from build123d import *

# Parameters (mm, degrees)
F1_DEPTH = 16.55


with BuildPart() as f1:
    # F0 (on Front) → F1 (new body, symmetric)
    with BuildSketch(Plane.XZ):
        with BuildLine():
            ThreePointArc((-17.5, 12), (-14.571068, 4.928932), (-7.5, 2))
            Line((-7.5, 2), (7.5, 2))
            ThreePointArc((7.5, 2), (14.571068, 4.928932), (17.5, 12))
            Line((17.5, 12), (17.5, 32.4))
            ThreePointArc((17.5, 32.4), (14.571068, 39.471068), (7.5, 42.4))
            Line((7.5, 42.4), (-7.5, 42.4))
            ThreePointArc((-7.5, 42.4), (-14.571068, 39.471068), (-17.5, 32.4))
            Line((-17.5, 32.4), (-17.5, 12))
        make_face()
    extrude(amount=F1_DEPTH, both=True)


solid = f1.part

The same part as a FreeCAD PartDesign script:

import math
import FreeCAD as App
import Part
import Sketcher

V = App.Vector
Q = App.Units.Quantity

doc = App.newDocument("Part")
body = doc.addObject("PartDesign::Body", "Body")

# Sketch on XZ plane
sketch1 = body.newObject("Sketcher::SketchObject", "Sketch")
sketch1.AttachmentSupport = (doc.getObject("XZ_Plane"), [""])
sketch1.MapMode = "FlatFace"
sketch1.addGeometry([
    Part.ArcOfCircle(Part.Circle(V(-8, 12, 0), V(0, 0, 1), 10), math.radians(180), math.radians(270)),  # 0
    Part.LineSegment(V(-8, 2, 0), V(8, 2, 0)),  # 1
    Part.ArcOfCircle(Part.Circle(V(8, 12, 0), V(0, 0, 1), 10), math.radians(-90), math.radians(0)),  # 2
    Part.LineSegment(V(18, 12, 0), V(18, 32, 0)),  # 3
    Part.ArcOfCircle(Part.Circle(V(8, 32, 0), V(0, 0, 1), 10), math.radians(0), math.radians(90)),  # 4
    Part.LineSegment(V(8, 42, 0), V(-8, 42, 0)),  # 5
    Part.ArcOfCircle(Part.Circle(V(-8, 32, 0), V(0, 0, 1), 10), math.radians(90), math.radians(180)),  # 6
    Part.LineSegment(V(-18, 32, 0), V(-18, 12, 0)),  # 7
], False)
sketch1.addConstraint([
    Sketcher.Constraint("Tangent", 0, 2, 1, 1),
    Sketcher.Constraint("Tangent", 1, 2, 2, 1),
    Sketcher.Constraint("Tangent", 2, 2, 3, 1),
    Sketcher.Constraint("Tangent", 3, 2, 4, 1),
    Sketcher.Constraint("Tangent", 4, 2, 5, 1),
    Sketcher.Constraint("Tangent", 5, 2, 6, 1),
    Sketcher.Constraint("Tangent", 6, 2, 7, 1),
    Sketcher.Constraint("Tangent", 7, 2, 0, 1),
    Sketcher.Constraint("Horizontal", 1),
    Sketcher.Constraint("Vertical", 3),
    Sketcher.Constraint("Horizontal", 5),
    Sketcher.Constraint("Vertical", 7),
    Sketcher.Constraint("Equal", 0, 2),
    Sketcher.Constraint("Equal", 2, 4),
    Sketcher.Constraint("Equal", 4, 6),
    Sketcher.Constraint("Radius", 0, Q("9.999999 mm")),
    Sketcher.Constraint("DistanceX", 1, 1, 1, 2, Q("15 mm")),
    Sketcher.Constraint("DistanceY", 3, 1, 3, 2, Q("20.4 mm")),
    Sketcher.Constraint("DistanceY", -1, 1, 0, 3, Q("11.999999 mm")),
    Sketcher.Constraint("DistanceX", 0, 3, -1, 1, Q("7.500001 mm")),
])
pad1 = body.newObject("PartDesign::Pad", "Pad")
pad1.Profile = sketch1
pad1.Length = 33.1
pad1.Midplane = True

doc.recompute()
